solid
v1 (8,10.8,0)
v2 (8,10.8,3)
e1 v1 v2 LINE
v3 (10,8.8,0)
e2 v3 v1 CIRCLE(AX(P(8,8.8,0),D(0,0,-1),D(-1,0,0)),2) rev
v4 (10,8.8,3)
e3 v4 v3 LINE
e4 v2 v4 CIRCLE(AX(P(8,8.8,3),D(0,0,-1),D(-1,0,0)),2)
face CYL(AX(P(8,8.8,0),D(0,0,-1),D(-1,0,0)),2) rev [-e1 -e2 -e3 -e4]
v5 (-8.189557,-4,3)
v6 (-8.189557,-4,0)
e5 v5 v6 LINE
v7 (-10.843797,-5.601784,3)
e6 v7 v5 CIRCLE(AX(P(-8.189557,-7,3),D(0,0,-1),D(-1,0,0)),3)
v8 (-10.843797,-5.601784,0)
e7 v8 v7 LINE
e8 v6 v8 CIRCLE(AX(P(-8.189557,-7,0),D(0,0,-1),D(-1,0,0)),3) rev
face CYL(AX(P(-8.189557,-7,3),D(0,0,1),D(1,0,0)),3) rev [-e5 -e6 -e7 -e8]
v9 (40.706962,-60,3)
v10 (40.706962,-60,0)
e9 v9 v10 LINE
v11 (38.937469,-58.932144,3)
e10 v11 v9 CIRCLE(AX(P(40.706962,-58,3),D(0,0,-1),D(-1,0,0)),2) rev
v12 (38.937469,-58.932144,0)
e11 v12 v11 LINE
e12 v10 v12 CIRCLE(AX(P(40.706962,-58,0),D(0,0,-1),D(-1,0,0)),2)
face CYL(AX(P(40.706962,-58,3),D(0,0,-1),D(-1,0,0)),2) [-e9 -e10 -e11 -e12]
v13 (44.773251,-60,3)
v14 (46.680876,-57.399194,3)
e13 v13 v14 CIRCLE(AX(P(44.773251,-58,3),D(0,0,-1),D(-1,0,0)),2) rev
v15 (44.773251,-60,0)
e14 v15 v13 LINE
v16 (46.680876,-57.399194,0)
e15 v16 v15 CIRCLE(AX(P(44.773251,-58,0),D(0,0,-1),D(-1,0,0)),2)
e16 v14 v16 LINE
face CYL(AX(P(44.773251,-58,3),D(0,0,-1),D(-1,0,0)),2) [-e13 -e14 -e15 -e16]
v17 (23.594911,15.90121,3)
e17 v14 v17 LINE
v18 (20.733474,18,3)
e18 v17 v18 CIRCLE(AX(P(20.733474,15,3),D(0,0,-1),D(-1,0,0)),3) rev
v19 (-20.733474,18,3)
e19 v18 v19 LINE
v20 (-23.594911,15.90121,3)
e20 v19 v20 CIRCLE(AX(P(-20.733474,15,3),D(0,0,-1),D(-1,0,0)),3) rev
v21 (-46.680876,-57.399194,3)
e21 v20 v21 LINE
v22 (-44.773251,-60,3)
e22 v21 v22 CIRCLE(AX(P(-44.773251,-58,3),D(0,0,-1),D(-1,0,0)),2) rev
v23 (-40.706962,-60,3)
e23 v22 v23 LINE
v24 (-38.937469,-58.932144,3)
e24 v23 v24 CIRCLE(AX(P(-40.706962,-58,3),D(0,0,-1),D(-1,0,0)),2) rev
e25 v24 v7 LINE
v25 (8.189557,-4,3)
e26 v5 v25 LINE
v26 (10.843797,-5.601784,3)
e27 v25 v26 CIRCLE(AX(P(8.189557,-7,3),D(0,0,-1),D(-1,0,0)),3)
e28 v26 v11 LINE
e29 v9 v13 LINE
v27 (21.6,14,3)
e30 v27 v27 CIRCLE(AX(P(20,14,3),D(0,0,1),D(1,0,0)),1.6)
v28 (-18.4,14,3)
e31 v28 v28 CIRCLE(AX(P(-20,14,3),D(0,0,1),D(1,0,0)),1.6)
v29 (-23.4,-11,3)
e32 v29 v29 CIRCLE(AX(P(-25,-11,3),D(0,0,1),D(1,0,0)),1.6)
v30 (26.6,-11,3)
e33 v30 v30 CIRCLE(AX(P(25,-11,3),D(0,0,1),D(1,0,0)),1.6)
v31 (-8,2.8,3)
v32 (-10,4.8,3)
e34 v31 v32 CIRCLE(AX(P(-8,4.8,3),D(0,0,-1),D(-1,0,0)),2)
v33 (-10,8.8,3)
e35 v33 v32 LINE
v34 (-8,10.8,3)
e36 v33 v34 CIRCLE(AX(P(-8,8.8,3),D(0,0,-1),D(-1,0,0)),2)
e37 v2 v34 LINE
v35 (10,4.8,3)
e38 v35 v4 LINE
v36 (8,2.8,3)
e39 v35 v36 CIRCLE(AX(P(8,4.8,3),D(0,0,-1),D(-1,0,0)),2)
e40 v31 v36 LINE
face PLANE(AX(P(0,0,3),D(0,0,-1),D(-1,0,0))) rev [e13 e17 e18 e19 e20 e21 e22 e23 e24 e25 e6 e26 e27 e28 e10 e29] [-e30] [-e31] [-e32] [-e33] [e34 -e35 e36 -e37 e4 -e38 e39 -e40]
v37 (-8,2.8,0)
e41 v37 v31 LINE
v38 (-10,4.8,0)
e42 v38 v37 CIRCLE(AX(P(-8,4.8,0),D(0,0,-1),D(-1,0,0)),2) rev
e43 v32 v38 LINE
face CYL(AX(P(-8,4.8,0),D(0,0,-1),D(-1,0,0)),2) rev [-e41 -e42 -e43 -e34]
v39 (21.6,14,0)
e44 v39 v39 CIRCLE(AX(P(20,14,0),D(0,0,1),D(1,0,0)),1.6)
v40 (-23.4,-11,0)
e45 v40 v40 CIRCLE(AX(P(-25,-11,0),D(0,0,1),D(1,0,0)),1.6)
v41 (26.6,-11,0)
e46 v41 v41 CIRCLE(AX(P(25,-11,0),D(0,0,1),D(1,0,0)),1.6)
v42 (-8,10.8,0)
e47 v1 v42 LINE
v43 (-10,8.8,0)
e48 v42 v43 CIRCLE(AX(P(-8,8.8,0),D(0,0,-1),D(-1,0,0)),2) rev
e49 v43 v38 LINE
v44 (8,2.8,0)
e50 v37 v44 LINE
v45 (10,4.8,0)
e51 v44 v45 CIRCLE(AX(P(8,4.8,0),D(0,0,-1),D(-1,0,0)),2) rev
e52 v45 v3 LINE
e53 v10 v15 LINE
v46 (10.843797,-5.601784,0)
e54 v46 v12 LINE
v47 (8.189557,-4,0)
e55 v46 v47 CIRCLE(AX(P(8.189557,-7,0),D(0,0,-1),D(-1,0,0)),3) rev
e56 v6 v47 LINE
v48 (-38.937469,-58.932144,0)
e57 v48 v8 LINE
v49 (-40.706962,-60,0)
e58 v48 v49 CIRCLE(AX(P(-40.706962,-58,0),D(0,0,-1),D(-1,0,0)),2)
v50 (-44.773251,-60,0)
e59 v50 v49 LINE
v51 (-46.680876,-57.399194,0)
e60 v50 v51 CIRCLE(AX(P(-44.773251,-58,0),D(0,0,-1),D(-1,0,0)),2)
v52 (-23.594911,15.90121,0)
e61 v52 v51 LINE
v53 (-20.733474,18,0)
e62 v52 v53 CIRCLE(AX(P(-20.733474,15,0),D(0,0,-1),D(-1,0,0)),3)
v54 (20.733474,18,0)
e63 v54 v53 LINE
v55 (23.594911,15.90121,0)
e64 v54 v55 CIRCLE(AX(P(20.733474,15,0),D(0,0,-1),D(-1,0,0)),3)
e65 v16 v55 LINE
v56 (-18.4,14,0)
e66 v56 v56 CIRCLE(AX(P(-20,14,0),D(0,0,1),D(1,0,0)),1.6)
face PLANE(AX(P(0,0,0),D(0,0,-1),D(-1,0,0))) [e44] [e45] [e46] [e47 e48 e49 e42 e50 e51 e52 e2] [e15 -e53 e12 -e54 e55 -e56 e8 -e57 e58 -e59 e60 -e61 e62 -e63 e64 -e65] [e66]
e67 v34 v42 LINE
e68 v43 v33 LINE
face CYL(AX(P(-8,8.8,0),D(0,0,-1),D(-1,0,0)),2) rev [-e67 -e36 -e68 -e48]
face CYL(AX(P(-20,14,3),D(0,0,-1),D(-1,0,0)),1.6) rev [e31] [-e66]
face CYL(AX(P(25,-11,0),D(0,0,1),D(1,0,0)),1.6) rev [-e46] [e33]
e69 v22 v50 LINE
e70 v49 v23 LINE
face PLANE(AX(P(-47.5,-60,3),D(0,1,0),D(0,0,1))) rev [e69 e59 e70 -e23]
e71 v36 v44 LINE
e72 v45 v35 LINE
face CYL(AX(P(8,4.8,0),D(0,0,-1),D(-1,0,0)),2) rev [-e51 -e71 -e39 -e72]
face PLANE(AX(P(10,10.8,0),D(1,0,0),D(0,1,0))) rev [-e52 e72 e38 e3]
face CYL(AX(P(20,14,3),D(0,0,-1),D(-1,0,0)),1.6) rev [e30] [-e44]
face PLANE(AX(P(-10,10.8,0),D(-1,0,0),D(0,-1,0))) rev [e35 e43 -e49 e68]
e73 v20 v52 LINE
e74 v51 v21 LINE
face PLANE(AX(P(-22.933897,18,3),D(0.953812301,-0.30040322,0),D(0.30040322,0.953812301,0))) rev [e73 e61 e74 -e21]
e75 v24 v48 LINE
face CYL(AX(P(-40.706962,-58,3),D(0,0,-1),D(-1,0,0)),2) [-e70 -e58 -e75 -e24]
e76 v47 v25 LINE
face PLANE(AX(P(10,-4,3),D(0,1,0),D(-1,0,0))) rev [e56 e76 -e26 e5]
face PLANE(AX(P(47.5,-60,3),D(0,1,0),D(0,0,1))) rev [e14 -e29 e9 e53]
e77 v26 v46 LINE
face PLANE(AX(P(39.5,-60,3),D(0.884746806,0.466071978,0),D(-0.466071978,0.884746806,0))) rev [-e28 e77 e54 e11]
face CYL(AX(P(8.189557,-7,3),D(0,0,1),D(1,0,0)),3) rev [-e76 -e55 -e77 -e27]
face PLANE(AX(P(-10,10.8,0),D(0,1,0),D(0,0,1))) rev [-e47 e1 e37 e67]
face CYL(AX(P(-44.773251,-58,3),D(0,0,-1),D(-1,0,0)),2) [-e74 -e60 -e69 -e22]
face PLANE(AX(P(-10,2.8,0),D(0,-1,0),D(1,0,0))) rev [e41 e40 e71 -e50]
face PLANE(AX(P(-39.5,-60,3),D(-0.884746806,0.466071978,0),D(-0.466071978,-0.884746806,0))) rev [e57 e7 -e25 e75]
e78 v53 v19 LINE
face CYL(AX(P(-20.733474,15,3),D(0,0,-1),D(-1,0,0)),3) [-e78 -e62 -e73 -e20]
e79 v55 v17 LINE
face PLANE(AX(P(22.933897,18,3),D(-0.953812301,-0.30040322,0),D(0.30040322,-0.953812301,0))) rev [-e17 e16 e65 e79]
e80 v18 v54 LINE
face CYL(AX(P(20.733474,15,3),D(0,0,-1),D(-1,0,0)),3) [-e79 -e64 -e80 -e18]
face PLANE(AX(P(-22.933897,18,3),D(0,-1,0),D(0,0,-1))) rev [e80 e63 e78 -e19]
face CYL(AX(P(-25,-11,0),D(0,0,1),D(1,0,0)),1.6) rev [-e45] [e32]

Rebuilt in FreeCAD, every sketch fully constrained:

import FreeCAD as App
import Part
import Sketcher
from FreeCAD import Vector
Q = App.Units.Quantity


def edges_at(feature, points):
    """Names of the edges that pass closest to the given points."""
    edges = feature.Shape.Edges
    near = lambda p: min(range(len(edges)), key=lambda i: edges[i].distToShape(Part.Vertex(*p))[0])
    return sorted({f"Edge{near(p) + 1}" for p in points})


def add_polygon(sketch, points):
    """Adds a closed chain of lines whose ends are joined by coincident constraints."""
    first, n = sketch.GeometryCount, len(points)
    for a, b in zip(points, points[1:] + points[:1]):
        sketch.addGeometry(Part.LineSegment(App.Vector(*a, 0), App.Vector(*b, 0)), False)
    for i in range(n):
        sketch.addConstraint(Sketcher.Constraint("Coincident", first + i, 2, first + (i + 1) % n, 1))

doc = App.newDocument("Part")
body = doc.addObject("PartDesign::Body", "Body")

# Sketch on XY plane
sketch1 = body.newObject("Sketcher::SketchObject", "Sketch")
sketch1.AttachmentSupport = (doc.getObject("XY_Plane"), [""])
sketch1.MapMode = "FlatFace"
add_polygon(sketch1, [(-22.9, 18), (-47.5, -60), (-39.5, -60), (-10, -4), (10, -4), (39.5, -60), (47.5, -60), (22.9, 18)])  # lines 0-7
sketch1.addGeometry(Part.Circle(Vector(-20, 14, 0), Vector(0, 0, 1), 1.6), False)  # 8
sketch1.addGeometry(Part.Circle(Vector(20, 14, 0), Vector(0, 0, 1), 1.6), False)  # 9
sketch1.addConstraint([
    Sketcher.Constraint("Horizontal", 1),
    Sketcher.Constraint("Horizontal", 3),
    Sketcher.Constraint("Horizontal", 5),
    Sketcher.Constraint("Horizontal", 7),
    Sketcher.Constraint("Equal", 8, 9),
    Sketcher.Constraint("Symmetric", 8, 3, 9, 3, -2),
    Sketcher.Constraint("Symmetric", 1, 2, 4, 2, -2),
    Sketcher.Constraint("Equal", 1, 5),
    Sketcher.Constraint("Equal", 2, 4),
    Sketcher.Constraint("Equal", 0, 6),
    Sketcher.Constraint("Diameter", 8, Q("3.2 mm")),
    Sketcher.Constraint("DistanceX", 1, 1, 1, 2, Q("8 mm")),
    Sketcher.Constraint("DistanceX", 3, 1, 3, 2, Q("20 mm")),
    Sketcher.Constraint("DistanceX", 8, 3, -1, 1, Q("20 mm")),
    Sketcher.Constraint("DistanceY", -1, 1, 8, 3, Q("14 mm")),
    Sketcher.Constraint("DistanceY", 0, 2, -1, 1, Q("60 mm")),
    Sketcher.Constraint("DistanceY", 2, 2, -1, 1, Q("4 mm")),
    Sketcher.Constraint("DistanceY", -1, 1, 6, 2, Q("18 mm")),
    Sketcher.Constraint("DistanceX", 1, 2, 4, 2, Q("79 mm")),
    Sketcher.Constraint("DistanceX", 7, 2, 7, 1, Q("45.867794 mm")),
])
pad1 = body.newObject("PartDesign::Pad", "Pad")
pad1.Profile = sketch1
pad1.Length = 3
doc.recompute()

fillet = body.newObject("PartDesign::Fillet", "Fillet")
fillet.Base = (pad1, edges_at(pad1, [(22.934, 18, 1.5), (-22.934, 18, 1.5)]))
fillet.Radius = 3
doc.recompute()

fillet2 = body.newObject("PartDesign::Fillet", "Fillet001")
fillet2.Base = (fillet, edges_at(fillet, [
    (47.5, -60, 1.5),
    (39.5, -60, 1.5),
    (-39.5, -60, 1.5),
    (-47.5, -60, 1.5),
]))
fillet2.Radius = 2
doc.recompute()

fillet3 = body.newObject("PartDesign::Fillet", "Fillet002")
fillet3.Base = (fillet2, edges_at(fillet2, [(10, -4, 1.5), (-10, -4, 1.5)]))
fillet3.Radius = 3

# Sketch on XY plane
sketch2 = body.newObject("Sketcher::SketchObject", "Sketch001")
sketch2.AttachmentSupport = (doc.getObject("XY_Plane"), [""])
sketch2.MapMode = "FlatFace"
sketch2.AttachmentOffset = App.Placement(Vector(0, 0, 3), App.Rotation())
add_polygon(sketch2, [(-10, 11), (-10, 3), (10, 3), (10, 11)])  # lines 0-3
sketch2.addConstraint([
    Sketcher.Constraint("Vertical", 0),
    Sketcher.Constraint("Horizontal", 1),
    Sketcher.Constraint("Vertical", 2),
    Sketcher.Constraint("Horizontal", 3),
    Sketcher.Constraint("DistanceX", 1, 1, 1, 2, Q("20 mm")),
    Sketcher.Constraint("DistanceY", 0, 2, 0, 1, Q("8 mm")),
    Sketcher.Constraint("DistanceX", 0, 2, -1, 1, Q("10 mm")),
    Sketcher.Constraint("DistanceY", -1, 1, 0, 2, Q("2.8 mm")),
])
pocket1 = body.newObject("PartDesign::Pocket", "Pocket")
pocket1.Profile = sketch2
pocket1.Type = "ThroughAll"
doc.recompute()

fillet4 = body.newObject("PartDesign::Fillet", "Fillet003")
fillet4.Base = (pocket1, edges_at(pocket1, [
    (-10, 2.8, 1.5),
    (-10, 10.8, 1.5),
    (10, 10.8, 1.5),
    (10, 2.8, 1.5),
]))
fillet4.Radius = 2

# Sketch on XY plane
sketch3 = body.newObject("Sketcher::SketchObject", "Sketch002")
sketch3.AttachmentSupport = (doc.getObject("XY_Plane"), [""])
sketch3.MapMode = "FlatFace"
sketch3.AttachmentOffset = App.Placement(Vector(0, 0, 3), App.Rotation())
sketch3.addGeometry([
    Part.Circle(Vector(-25, -11, 0), Vector(0, 0, 1), 1.6),
    Part.Circle(Vector(25, -11, 0), Vector(0, 0, 1), 1.6),
], False)
sketch3.addConstraint([
    Sketcher.Constraint("Equal", 0, 1),
    Sketcher.Constraint("Symmetric", 0, 3, 1, 3, -2),
    Sketcher.Constraint("Diameter", 0, Q("3.2 mm")),
    Sketcher.Constraint("DistanceX", 0, 3, -1, 1, Q("25 mm")),
    Sketcher.Constraint("DistanceY", 0, 3, -1, 1, Q("11 mm")),
])
pocket2 = body.newObject("PartDesign::Pocket", "Pocket001")
pocket2.Profile = sketch3
pocket2.Type = "ThroughAll"

doc.recompute()
